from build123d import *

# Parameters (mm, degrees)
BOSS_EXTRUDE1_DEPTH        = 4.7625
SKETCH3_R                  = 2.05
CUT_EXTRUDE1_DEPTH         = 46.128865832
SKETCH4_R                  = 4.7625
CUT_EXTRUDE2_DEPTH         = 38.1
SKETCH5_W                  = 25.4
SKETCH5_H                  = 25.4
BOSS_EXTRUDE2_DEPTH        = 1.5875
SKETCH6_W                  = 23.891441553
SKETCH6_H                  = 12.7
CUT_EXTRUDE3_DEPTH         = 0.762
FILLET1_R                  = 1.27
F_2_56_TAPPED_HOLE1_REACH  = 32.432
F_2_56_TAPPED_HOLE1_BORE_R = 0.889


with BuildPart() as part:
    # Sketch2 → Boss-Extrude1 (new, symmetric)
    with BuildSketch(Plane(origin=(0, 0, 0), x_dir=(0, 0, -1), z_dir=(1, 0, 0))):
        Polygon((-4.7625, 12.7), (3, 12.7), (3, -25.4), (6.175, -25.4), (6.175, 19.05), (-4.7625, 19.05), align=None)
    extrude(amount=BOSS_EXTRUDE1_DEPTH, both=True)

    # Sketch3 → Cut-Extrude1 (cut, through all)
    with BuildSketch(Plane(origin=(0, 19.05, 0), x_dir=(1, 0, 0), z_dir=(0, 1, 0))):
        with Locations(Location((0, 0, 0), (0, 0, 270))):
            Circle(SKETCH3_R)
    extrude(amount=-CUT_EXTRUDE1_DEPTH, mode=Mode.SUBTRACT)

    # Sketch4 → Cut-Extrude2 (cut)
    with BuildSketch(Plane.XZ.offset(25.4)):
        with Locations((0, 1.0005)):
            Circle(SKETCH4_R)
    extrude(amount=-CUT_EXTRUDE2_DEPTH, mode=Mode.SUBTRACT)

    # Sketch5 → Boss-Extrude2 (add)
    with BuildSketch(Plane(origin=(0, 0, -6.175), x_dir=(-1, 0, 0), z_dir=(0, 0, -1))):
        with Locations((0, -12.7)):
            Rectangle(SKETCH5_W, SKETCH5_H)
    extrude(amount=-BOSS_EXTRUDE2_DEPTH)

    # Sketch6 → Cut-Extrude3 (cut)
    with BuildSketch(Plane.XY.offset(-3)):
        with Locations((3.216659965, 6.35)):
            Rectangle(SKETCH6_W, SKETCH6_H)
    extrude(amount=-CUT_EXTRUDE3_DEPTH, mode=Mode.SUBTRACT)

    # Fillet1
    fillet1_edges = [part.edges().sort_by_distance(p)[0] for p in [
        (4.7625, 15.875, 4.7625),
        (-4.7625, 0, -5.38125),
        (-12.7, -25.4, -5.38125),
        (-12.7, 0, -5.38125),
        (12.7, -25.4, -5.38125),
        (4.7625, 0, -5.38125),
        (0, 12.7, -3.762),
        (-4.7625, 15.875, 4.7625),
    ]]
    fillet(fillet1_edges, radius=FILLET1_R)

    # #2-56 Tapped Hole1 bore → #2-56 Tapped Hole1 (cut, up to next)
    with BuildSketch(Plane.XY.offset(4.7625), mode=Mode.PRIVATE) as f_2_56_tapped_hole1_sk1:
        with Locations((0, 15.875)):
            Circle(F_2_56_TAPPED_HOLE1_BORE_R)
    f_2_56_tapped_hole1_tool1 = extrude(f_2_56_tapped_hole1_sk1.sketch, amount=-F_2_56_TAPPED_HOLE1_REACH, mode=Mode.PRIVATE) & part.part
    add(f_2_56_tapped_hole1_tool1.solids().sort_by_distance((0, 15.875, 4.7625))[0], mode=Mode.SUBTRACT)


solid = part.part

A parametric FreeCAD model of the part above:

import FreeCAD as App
import Part
import Sketcher

V = App.Vector
Q = App.Units.Quantity


def edges_at(feature, points):
    """Names of the edges that pass closest to the given points."""
    edges = feature.Shape.Edges
    near = lambda p: min(range(len(edges)), key=lambda i: edges[i].distToShape(Part.Vertex(*p))[0])
    return sorted({f"Edge{near(p) + 1}" for p in points})


def add_polygon(sketch, points):
    """Adds a closed chain of lines whose ends are joined by coincident constraints."""
    first, n = sketch.GeometryCount, len(points)
    for a, b in zip(points, points[1:] + points[:1]):
        sketch.addGeometry(Part.LineSegment(App.Vector(*a, 0), App.Vector(*b, 0)), False)
    for i in range(n):
        sketch.addConstraint(Sketcher.Constraint("Coincident", first + i, 2, first + (i + 1) % n, 1))

doc = App.newDocument("Part")
body = doc.addObject("PartDesign::Body", "Body")

# Sketch on YZ plane
sketch1 = doc.addObject("Sketcher::SketchObject", "Sketch")
body.addObject(sketch1)
sketch1.AttachmentSupport = (doc.YZ_Plane, [""])
sketch1.MapMode = "FlatFace"
add_polygon(sketch1, [(12.7, 4.8), (12.7, -3), (-25.4, -3), (-25.4, -6.2), (19.1, -6.2), (19.1, 4.8)])  # lines 0-5
sketch1.addConstraint(Sketcher.Constraint("Vertical", 0))
sketch1.addConstraint(Sketcher.Constraint("Horizontal", 1))
sketch1.addConstraint(Sketcher.Constraint("Vertical", 2))
sketch1.addConstraint(Sketcher.Constraint("Horizontal", 3))
sketch1.addConstraint(Sketcher.Constraint("Vertical", 4))
sketch1.addConstraint(Sketcher.Constraint("Horizontal", 5))
sketch1.addConstraint(Sketcher.Constraint("DistanceX", 1, 2, 1, 1, Q("1.5 in")))
sketch1.addConstraint(Sketcher.Constraint("DistanceX", 1, 2, -1, 1, Q("1 in")))
sketch1.addConstraint(Sketcher.Constraint("DistanceX", 3, 1, 3, 2, Q("1.75 in")))
sketch1.addConstraint(Sketcher.Constraint("DistanceY", 2, 2, 2, 1, Q("0.125 in")))
sketch1.addConstraint(Sketcher.Constraint("DistanceY", -1, 1, 4, 2, Q("0.1875 in")))
sketch1.addConstraint(Sketcher.Constraint("DistanceY", 0, 2, 0, 1, Q("7.7625 mm")))
pad1 = doc.addObject("PartDesign::Pad", "Pad")
body.addObject(pad1)
pad1.Profile = sketch1
pad1.Length = Q("0.375 in")
pad1.Midplane = True

# Sketch on XZ plane
sketch2 = doc.addObject("Sketcher::SketchObject", "Sketch001")
body.addObject(sketch2)
sketch2.AttachmentSupport = (doc.XZ_Plane, [""])
sketch2.MapMode = "FlatFace"
sketch2.AttachmentOffset = App.Placement(V(0, 0, -0.75 * 25.4), App.Rotation())
sketch2.addGeometry(Part.Circle(V(0, 0, 0), V(0, 0, 1), 2), False)
sketch2.addConstraint(Sketcher.Constraint("Coincident", 0, 3, -1, 1))
sketch2.addConstraint(Sketcher.Constraint("Diameter", 0, Q("4.1 mm")))
pocket1 = doc.addObject("PartDesign::Pocket", "Pocket")
body.addObject(pocket1)
pocket1.Profile = sketch2
pocket1.Type = "ThroughAll"
pocket1.Reversed = True

# Sketch on XZ plane
sketch3 = doc.addObject("Sketcher::SketchObject", "Sketch002")
body.addObject(sketch3)
sketch3.AttachmentSupport = (doc.XZ_Plane, [""])
sketch3.MapMode = "FlatFace"
sketch3.AttachmentOffset = App.Placement(V(0, 0, 1 * 25.4), App.Rotation())
sketch3.addGeometry(Part.Circle(V(0, 1, 0), V(0, 0, 1), 4.8), False)
sketch3.addConstraint(Sketcher.Constraint("PointOnObject", 0, 3, -2))
sketch3.addConstraint(Sketcher.Constraint("Diameter", 0, Q("0.375 in")))
sketch3.addConstraint(Sketcher.Constraint("DistanceY", -1, 1, 0, 3, Q("1.0005 mm")))
pocket2 = doc.addObject("PartDesign::Pocket", "Pocket001")
body.addObject(pocket2)
pocket2.Profile = sketch3
pocket2.Length = Q("1.5 in")

# Sketch on XY plane
sketch4 = doc.addObject("Sketcher::SketchObject", "Sketch003")
body.addObject(sketch4)
sketch4.AttachmentSupport = (doc.XY_Plane, [""])
sketch4.MapMode = "FlatFace"
sketch4.AttachmentOffset = App.Placement(V(0, 0, -6.175), App.Rotation())
add_polygon(sketch4, [(13, 0), (13, -25), (-13, -25), (-13, 0)])  # lines 0-3
sketch4.addConstraint(Sketcher.Constraint("Vertical", 0))
sketch4.addConstraint(Sketcher.Constraint("Horizontal", 1))
sketch4.addConstraint(Sketcher.Constraint("Vertical", 2))
sketch4.addConstraint(Sketcher.Constraint("Horizontal", 3))
sketch4.addConstraint(Sketcher.Constraint("Symmetric", 2, 2, 3, 2, -1, 1))
sketch4.addConstraint(Sketcher.Constraint("Equal", 3, 0))
sketch4.addConstraint(Sketcher.Constraint("DistanceX", 1, 2, 1, 1, Q("1 in")))
pad2 = doc.addObject("PartDesign::Pad", "Pad001")
body.addObject(pad2)
pad2.Profile = sketch4
pad2.Length = Q("0.0625 in")

# Sketch on XY plane
sketch5 = doc.addObject("Sketcher::SketchObject", "Sketch004")
body.addObject(sketch5)
sketch5.AttachmentSupport = (doc.XY_Plane, [""])
sketch5.MapMode = "FlatFace"
sketch5.AttachmentOffset = App.Placement(V(0, 0, -3), App.Rotation())
add_polygon(sketch5, [(-9, 13), (-9, 0), (15, 0), (15, 13)])  # lines 0-3
sketch5.addConstraint(Sketcher.Constraint("Vertical", 0))
sketch5.addConstraint(Sketcher.Constraint("Horizontal", 1))
sketch5.addConstraint(Sketcher.Constraint("Vertical", 2))
sketch5.addConstraint(Sketcher.Constraint("Horizontal", 3))
sketch5.addConstraint(Sketcher.Constraint("PointOnObject", 0, 2, -1))
sketch5.addConstraint(Sketcher.Constraint("DistanceY", 0, 2, 0, 1, Q("0.5 in")))
sketch5.addConstraint(Sketcher.Constraint("DistanceX", 1, 1, 1, 2, Q("23.891442 mm")))
sketch5.addConstraint(Sketcher.Constraint("DistanceX", 0, 2, -1, 1, Q("8.729061 mm")))
pocket3 = doc.addObject("PartDesign::Pocket", "Pocket002")
body.addObject(pocket3)
pocket3.Profile = sketch5
pocket3.Length = Q("0.03 in")
doc.recompute()

fillet = doc.addObject("PartDesign::Fillet", "Fillet")
body.addObject(fillet)
fillet.Base = (pocket3, edges_at(pocket3, [
    (4.763, 15.875, 4.763),
    (-4.763, 0, -5.381),
    (-12.7, -25.4, -5.381),
    (-12.7, 0, -5.381),
    (12.7, -25.4, -5.381),
    (4.763, 0, -5.381),
    (0, 12.7, -3.762),
    (-4.763, 15.875, 4.763),
]))
fillet.Radius = Q("0.05 in")

# Sketch on XY plane
sketch6 = doc.addObject("Sketcher::SketchObject", "Sketch005")
body.addObject(sketch6)
sketch6.AttachmentSupport = (doc.XY_Plane, [""])
sketch6.MapMode = "FlatFace"
sketch6.AttachmentOffset = App.Placement(V(0, 0, 0.1875 * 25.4), App.Rotation())
sketch6.addGeometry(Part.Circle(V(0, 15.9, 0), V(0, 0, 1), 0.9), False)
sketch6.addConstraint(Sketcher.Constraint("PointOnObject", 0, 3, -2))
sketch6.addConstraint(Sketcher.Constraint("Diameter", 0, Q("0.07 in")))
sketch6.addConstraint(Sketcher.Constraint("DistanceY", -1, 1, 0, 3, Q("0.625 in")))
pocket4 = doc.addObject("PartDesign::Pocket", "Pocket003")
body.addObject(pocket4)
pocket4.Profile = sketch6
pocket4.Type = "UpToFirst"

doc.recompute()
